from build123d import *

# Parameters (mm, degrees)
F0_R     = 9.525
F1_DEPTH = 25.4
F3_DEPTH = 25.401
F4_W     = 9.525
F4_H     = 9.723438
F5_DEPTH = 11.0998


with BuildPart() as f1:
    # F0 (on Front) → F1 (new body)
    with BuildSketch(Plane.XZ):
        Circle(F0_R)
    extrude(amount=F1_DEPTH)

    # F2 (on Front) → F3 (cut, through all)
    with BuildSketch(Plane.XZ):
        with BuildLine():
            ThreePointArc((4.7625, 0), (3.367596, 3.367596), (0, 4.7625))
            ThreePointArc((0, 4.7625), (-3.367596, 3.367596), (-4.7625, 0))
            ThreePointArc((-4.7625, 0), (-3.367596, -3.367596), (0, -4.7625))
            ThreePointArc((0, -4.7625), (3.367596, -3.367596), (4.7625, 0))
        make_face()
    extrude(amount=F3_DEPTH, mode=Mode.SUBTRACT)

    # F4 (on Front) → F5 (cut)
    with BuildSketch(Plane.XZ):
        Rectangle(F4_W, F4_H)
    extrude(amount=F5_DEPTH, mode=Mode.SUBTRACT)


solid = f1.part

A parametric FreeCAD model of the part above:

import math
import FreeCAD as App
import Part
import Sketcher

V = App.Vector
Q = App.Units.Quantity

doc = App.newDocument("Part")
params = doc.addObject("Spreadsheet::Sheet", "Params")
for row, (alias, value) in enumerate([
    ("sketch1_diameter", "0.75 in"),
    ("pad1_length", "1 in"),
    ("sketch2_radius", "0.1875 in"),
    ("sketch3_width", "0.375 in"),
    ("pocket2_length", "0.437 in"),
], start=1):
    params.set(f"A{row}", alias)
    params.set(f"B{row}", "=" + value)
    params.setAlias(f"B{row}", alias)

body = doc.addObject("PartDesign::Body", "Body")

sketch1 = body.newObject("Sketcher::SketchObject", "Sketch")
sketch1.AttachmentSupport = (doc.getObject("XZ_Plane"), [""])
sketch1.MapMode = "FlatFace"
sketch1.addGeometry(Part.Circle(V(0, 0, 0), V(0, 0, 1), 9.525), False)
sketch1.addConstraint(Sketcher.Constraint("Coincident", 0, 3, -1, 1))
sketch1.addConstraint(Sketcher.Constraint("Diameter", 0, Q("0.75 in")))
sketch1.setExpression("Constraints[1]", "Params.sketch1_diameter")
pad1 = body.newObject("PartDesign::Pad", "Pad")
pad1.Profile = sketch1
pad1.setExpression("Length", "Params.pad1_length")

sketch2 = body.newObject("Sketcher::SketchObject", "Sketch001")
sketch2.AttachmentSupport = (doc.getObject("XZ_Plane"), [""])
sketch2.MapMode = "FlatFace"
sketch2.addGeometry(Part.ArcOfCircle(Part.Circle(V(0, 0, 0), V(0, 0, 1), 4.7625), math.radians(0.000002), math.radians(89.999998)), False)
sketch2.addGeometry(Part.ArcOfCircle(Part.Circle(V(0, 0, 0), V(0, 0, 1), 4.7625), math.radians(90.000002), math.radians(179.999998)), False)
sketch2.addGeometry(Part.ArcOfCircle(Part.Circle(V(0, 0, 0), V(0, 0, 1), 4.7625), math.radians(-179.999998), math.radians(-90.000002)), False)
sketch2.addGeometry(Part.ArcOfCircle(Part.Circle(V(0, 0, 0), V(0, 0, 1), 4.7625), math.radians(-89.999998), math.radians(-0.000002)), False)
sketch2.addConstraint(Sketcher.Constraint("Tangent", 0, 2, 1, 1))
sketch2.addConstraint(Sketcher.Constraint("Tangent", 1, 2, 2, 1))
sketch2.addConstraint(Sketcher.Constraint("Tangent", 2, 2, 3, 1))
sketch2.addConstraint(Sketcher.Constraint("Tangent", 3, 2, 0, 1))
sketch2.addConstraint(Sketcher.Constraint("Coincident", 0, 3, -1, 1))
sketch2.addConstraint(Sketcher.Constraint("Equal", 0, 1))
sketch2.addConstraint(Sketcher.Constraint("PointOnObject", 0, 2, -2))
sketch2.addConstraint(Sketcher.Constraint("PointOnObject", 1, 2, -1))
sketch2.addConstraint(Sketcher.Constraint("PointOnObject", 2, 2, -2))
sketch2.addConstraint(Sketcher.Constraint("PointOnObject", 3, 2, -1))
sketch2.addConstraint(Sketcher.Constraint("Radius", 0, Q("0.1875 in")))
sketch2.setExpression("Constraints[10]", "Params.sketch2_radius")
pocket1 = body.newObject("PartDesign::Pocket", "Pocket")
pocket1.Profile = sketch2
pocket1.Type = "ThroughAll"
pocket1.Reversed = True

sketch3 = body.newObject("Sketcher::SketchObject", "Sketch002")
sketch3.AttachmentSupport = (doc.getObject("XZ_Plane"), [""])
sketch3.MapMode = "FlatFace"
sketch3.addGeometry(Part.LineSegment(V(-4.7625, 4.861719, 0), V(-4.7625, -4.861719, 0)), False)
sketch3.addGeometry(Part.LineSegment(V(-4.7625, -4.861719, 0), V(4.7625, -4.861719, 0)), False)
sketch3.addGeometry(Part.LineSegment(V(4.7625, -4.861719, 0), V(4.7625, 4.861719, 0)), False)
sketch3.addGeometry(Part.LineSegment(V(4.7625, 4.861719, 0), V(-4.7625, 4.861719, 0)), False)
sketch3.addConstraint(Sketcher.Constraint("Coincident", 0, 2, 1, 1))
sketch3.addConstraint(Sketcher.Constraint("Coincident", 1, 2, 2, 1))
sketch3.addConstraint(Sketcher.Constraint("Coincident", 2, 2, 3, 1))
sketch3.addConstraint(Sketcher.Constraint("Coincident", 3, 2, 0, 1))
sketch3.addConstraint(Sketcher.Constraint("Vertical", 0))
sketch3.addConstraint(Sketcher.Constraint("Horizontal", 1))
sketch3.addConstraint(Sketcher.Constraint("Vertical", 2))
sketch3.addConstraint(Sketcher.Constraint("Horizontal", 3))
sketch3.addConstraint(Sketcher.Constraint("Symmetric", 0, 2, 2, 2, -1, 1))
sketch3.addConstraint(Sketcher.Constraint("DistanceX", 1, 1, 1, 2, Q("0.375 in")))
sketch3.addConstraint(Sketcher.Constraint("DistanceY", 0, 2, 0, 1, Q("9.723438 mm")))
sketch3.setExpression("Constraints[9]", "Params.sketch3_width")
pocket2 = body.newObject("PartDesign::Pocket", "Pocket001")
pocket2.Profile = sketch3
pocket2.setExpression("Length", "Params.pocket2_length")
pocket2.Reversed = True

doc.recompute()
